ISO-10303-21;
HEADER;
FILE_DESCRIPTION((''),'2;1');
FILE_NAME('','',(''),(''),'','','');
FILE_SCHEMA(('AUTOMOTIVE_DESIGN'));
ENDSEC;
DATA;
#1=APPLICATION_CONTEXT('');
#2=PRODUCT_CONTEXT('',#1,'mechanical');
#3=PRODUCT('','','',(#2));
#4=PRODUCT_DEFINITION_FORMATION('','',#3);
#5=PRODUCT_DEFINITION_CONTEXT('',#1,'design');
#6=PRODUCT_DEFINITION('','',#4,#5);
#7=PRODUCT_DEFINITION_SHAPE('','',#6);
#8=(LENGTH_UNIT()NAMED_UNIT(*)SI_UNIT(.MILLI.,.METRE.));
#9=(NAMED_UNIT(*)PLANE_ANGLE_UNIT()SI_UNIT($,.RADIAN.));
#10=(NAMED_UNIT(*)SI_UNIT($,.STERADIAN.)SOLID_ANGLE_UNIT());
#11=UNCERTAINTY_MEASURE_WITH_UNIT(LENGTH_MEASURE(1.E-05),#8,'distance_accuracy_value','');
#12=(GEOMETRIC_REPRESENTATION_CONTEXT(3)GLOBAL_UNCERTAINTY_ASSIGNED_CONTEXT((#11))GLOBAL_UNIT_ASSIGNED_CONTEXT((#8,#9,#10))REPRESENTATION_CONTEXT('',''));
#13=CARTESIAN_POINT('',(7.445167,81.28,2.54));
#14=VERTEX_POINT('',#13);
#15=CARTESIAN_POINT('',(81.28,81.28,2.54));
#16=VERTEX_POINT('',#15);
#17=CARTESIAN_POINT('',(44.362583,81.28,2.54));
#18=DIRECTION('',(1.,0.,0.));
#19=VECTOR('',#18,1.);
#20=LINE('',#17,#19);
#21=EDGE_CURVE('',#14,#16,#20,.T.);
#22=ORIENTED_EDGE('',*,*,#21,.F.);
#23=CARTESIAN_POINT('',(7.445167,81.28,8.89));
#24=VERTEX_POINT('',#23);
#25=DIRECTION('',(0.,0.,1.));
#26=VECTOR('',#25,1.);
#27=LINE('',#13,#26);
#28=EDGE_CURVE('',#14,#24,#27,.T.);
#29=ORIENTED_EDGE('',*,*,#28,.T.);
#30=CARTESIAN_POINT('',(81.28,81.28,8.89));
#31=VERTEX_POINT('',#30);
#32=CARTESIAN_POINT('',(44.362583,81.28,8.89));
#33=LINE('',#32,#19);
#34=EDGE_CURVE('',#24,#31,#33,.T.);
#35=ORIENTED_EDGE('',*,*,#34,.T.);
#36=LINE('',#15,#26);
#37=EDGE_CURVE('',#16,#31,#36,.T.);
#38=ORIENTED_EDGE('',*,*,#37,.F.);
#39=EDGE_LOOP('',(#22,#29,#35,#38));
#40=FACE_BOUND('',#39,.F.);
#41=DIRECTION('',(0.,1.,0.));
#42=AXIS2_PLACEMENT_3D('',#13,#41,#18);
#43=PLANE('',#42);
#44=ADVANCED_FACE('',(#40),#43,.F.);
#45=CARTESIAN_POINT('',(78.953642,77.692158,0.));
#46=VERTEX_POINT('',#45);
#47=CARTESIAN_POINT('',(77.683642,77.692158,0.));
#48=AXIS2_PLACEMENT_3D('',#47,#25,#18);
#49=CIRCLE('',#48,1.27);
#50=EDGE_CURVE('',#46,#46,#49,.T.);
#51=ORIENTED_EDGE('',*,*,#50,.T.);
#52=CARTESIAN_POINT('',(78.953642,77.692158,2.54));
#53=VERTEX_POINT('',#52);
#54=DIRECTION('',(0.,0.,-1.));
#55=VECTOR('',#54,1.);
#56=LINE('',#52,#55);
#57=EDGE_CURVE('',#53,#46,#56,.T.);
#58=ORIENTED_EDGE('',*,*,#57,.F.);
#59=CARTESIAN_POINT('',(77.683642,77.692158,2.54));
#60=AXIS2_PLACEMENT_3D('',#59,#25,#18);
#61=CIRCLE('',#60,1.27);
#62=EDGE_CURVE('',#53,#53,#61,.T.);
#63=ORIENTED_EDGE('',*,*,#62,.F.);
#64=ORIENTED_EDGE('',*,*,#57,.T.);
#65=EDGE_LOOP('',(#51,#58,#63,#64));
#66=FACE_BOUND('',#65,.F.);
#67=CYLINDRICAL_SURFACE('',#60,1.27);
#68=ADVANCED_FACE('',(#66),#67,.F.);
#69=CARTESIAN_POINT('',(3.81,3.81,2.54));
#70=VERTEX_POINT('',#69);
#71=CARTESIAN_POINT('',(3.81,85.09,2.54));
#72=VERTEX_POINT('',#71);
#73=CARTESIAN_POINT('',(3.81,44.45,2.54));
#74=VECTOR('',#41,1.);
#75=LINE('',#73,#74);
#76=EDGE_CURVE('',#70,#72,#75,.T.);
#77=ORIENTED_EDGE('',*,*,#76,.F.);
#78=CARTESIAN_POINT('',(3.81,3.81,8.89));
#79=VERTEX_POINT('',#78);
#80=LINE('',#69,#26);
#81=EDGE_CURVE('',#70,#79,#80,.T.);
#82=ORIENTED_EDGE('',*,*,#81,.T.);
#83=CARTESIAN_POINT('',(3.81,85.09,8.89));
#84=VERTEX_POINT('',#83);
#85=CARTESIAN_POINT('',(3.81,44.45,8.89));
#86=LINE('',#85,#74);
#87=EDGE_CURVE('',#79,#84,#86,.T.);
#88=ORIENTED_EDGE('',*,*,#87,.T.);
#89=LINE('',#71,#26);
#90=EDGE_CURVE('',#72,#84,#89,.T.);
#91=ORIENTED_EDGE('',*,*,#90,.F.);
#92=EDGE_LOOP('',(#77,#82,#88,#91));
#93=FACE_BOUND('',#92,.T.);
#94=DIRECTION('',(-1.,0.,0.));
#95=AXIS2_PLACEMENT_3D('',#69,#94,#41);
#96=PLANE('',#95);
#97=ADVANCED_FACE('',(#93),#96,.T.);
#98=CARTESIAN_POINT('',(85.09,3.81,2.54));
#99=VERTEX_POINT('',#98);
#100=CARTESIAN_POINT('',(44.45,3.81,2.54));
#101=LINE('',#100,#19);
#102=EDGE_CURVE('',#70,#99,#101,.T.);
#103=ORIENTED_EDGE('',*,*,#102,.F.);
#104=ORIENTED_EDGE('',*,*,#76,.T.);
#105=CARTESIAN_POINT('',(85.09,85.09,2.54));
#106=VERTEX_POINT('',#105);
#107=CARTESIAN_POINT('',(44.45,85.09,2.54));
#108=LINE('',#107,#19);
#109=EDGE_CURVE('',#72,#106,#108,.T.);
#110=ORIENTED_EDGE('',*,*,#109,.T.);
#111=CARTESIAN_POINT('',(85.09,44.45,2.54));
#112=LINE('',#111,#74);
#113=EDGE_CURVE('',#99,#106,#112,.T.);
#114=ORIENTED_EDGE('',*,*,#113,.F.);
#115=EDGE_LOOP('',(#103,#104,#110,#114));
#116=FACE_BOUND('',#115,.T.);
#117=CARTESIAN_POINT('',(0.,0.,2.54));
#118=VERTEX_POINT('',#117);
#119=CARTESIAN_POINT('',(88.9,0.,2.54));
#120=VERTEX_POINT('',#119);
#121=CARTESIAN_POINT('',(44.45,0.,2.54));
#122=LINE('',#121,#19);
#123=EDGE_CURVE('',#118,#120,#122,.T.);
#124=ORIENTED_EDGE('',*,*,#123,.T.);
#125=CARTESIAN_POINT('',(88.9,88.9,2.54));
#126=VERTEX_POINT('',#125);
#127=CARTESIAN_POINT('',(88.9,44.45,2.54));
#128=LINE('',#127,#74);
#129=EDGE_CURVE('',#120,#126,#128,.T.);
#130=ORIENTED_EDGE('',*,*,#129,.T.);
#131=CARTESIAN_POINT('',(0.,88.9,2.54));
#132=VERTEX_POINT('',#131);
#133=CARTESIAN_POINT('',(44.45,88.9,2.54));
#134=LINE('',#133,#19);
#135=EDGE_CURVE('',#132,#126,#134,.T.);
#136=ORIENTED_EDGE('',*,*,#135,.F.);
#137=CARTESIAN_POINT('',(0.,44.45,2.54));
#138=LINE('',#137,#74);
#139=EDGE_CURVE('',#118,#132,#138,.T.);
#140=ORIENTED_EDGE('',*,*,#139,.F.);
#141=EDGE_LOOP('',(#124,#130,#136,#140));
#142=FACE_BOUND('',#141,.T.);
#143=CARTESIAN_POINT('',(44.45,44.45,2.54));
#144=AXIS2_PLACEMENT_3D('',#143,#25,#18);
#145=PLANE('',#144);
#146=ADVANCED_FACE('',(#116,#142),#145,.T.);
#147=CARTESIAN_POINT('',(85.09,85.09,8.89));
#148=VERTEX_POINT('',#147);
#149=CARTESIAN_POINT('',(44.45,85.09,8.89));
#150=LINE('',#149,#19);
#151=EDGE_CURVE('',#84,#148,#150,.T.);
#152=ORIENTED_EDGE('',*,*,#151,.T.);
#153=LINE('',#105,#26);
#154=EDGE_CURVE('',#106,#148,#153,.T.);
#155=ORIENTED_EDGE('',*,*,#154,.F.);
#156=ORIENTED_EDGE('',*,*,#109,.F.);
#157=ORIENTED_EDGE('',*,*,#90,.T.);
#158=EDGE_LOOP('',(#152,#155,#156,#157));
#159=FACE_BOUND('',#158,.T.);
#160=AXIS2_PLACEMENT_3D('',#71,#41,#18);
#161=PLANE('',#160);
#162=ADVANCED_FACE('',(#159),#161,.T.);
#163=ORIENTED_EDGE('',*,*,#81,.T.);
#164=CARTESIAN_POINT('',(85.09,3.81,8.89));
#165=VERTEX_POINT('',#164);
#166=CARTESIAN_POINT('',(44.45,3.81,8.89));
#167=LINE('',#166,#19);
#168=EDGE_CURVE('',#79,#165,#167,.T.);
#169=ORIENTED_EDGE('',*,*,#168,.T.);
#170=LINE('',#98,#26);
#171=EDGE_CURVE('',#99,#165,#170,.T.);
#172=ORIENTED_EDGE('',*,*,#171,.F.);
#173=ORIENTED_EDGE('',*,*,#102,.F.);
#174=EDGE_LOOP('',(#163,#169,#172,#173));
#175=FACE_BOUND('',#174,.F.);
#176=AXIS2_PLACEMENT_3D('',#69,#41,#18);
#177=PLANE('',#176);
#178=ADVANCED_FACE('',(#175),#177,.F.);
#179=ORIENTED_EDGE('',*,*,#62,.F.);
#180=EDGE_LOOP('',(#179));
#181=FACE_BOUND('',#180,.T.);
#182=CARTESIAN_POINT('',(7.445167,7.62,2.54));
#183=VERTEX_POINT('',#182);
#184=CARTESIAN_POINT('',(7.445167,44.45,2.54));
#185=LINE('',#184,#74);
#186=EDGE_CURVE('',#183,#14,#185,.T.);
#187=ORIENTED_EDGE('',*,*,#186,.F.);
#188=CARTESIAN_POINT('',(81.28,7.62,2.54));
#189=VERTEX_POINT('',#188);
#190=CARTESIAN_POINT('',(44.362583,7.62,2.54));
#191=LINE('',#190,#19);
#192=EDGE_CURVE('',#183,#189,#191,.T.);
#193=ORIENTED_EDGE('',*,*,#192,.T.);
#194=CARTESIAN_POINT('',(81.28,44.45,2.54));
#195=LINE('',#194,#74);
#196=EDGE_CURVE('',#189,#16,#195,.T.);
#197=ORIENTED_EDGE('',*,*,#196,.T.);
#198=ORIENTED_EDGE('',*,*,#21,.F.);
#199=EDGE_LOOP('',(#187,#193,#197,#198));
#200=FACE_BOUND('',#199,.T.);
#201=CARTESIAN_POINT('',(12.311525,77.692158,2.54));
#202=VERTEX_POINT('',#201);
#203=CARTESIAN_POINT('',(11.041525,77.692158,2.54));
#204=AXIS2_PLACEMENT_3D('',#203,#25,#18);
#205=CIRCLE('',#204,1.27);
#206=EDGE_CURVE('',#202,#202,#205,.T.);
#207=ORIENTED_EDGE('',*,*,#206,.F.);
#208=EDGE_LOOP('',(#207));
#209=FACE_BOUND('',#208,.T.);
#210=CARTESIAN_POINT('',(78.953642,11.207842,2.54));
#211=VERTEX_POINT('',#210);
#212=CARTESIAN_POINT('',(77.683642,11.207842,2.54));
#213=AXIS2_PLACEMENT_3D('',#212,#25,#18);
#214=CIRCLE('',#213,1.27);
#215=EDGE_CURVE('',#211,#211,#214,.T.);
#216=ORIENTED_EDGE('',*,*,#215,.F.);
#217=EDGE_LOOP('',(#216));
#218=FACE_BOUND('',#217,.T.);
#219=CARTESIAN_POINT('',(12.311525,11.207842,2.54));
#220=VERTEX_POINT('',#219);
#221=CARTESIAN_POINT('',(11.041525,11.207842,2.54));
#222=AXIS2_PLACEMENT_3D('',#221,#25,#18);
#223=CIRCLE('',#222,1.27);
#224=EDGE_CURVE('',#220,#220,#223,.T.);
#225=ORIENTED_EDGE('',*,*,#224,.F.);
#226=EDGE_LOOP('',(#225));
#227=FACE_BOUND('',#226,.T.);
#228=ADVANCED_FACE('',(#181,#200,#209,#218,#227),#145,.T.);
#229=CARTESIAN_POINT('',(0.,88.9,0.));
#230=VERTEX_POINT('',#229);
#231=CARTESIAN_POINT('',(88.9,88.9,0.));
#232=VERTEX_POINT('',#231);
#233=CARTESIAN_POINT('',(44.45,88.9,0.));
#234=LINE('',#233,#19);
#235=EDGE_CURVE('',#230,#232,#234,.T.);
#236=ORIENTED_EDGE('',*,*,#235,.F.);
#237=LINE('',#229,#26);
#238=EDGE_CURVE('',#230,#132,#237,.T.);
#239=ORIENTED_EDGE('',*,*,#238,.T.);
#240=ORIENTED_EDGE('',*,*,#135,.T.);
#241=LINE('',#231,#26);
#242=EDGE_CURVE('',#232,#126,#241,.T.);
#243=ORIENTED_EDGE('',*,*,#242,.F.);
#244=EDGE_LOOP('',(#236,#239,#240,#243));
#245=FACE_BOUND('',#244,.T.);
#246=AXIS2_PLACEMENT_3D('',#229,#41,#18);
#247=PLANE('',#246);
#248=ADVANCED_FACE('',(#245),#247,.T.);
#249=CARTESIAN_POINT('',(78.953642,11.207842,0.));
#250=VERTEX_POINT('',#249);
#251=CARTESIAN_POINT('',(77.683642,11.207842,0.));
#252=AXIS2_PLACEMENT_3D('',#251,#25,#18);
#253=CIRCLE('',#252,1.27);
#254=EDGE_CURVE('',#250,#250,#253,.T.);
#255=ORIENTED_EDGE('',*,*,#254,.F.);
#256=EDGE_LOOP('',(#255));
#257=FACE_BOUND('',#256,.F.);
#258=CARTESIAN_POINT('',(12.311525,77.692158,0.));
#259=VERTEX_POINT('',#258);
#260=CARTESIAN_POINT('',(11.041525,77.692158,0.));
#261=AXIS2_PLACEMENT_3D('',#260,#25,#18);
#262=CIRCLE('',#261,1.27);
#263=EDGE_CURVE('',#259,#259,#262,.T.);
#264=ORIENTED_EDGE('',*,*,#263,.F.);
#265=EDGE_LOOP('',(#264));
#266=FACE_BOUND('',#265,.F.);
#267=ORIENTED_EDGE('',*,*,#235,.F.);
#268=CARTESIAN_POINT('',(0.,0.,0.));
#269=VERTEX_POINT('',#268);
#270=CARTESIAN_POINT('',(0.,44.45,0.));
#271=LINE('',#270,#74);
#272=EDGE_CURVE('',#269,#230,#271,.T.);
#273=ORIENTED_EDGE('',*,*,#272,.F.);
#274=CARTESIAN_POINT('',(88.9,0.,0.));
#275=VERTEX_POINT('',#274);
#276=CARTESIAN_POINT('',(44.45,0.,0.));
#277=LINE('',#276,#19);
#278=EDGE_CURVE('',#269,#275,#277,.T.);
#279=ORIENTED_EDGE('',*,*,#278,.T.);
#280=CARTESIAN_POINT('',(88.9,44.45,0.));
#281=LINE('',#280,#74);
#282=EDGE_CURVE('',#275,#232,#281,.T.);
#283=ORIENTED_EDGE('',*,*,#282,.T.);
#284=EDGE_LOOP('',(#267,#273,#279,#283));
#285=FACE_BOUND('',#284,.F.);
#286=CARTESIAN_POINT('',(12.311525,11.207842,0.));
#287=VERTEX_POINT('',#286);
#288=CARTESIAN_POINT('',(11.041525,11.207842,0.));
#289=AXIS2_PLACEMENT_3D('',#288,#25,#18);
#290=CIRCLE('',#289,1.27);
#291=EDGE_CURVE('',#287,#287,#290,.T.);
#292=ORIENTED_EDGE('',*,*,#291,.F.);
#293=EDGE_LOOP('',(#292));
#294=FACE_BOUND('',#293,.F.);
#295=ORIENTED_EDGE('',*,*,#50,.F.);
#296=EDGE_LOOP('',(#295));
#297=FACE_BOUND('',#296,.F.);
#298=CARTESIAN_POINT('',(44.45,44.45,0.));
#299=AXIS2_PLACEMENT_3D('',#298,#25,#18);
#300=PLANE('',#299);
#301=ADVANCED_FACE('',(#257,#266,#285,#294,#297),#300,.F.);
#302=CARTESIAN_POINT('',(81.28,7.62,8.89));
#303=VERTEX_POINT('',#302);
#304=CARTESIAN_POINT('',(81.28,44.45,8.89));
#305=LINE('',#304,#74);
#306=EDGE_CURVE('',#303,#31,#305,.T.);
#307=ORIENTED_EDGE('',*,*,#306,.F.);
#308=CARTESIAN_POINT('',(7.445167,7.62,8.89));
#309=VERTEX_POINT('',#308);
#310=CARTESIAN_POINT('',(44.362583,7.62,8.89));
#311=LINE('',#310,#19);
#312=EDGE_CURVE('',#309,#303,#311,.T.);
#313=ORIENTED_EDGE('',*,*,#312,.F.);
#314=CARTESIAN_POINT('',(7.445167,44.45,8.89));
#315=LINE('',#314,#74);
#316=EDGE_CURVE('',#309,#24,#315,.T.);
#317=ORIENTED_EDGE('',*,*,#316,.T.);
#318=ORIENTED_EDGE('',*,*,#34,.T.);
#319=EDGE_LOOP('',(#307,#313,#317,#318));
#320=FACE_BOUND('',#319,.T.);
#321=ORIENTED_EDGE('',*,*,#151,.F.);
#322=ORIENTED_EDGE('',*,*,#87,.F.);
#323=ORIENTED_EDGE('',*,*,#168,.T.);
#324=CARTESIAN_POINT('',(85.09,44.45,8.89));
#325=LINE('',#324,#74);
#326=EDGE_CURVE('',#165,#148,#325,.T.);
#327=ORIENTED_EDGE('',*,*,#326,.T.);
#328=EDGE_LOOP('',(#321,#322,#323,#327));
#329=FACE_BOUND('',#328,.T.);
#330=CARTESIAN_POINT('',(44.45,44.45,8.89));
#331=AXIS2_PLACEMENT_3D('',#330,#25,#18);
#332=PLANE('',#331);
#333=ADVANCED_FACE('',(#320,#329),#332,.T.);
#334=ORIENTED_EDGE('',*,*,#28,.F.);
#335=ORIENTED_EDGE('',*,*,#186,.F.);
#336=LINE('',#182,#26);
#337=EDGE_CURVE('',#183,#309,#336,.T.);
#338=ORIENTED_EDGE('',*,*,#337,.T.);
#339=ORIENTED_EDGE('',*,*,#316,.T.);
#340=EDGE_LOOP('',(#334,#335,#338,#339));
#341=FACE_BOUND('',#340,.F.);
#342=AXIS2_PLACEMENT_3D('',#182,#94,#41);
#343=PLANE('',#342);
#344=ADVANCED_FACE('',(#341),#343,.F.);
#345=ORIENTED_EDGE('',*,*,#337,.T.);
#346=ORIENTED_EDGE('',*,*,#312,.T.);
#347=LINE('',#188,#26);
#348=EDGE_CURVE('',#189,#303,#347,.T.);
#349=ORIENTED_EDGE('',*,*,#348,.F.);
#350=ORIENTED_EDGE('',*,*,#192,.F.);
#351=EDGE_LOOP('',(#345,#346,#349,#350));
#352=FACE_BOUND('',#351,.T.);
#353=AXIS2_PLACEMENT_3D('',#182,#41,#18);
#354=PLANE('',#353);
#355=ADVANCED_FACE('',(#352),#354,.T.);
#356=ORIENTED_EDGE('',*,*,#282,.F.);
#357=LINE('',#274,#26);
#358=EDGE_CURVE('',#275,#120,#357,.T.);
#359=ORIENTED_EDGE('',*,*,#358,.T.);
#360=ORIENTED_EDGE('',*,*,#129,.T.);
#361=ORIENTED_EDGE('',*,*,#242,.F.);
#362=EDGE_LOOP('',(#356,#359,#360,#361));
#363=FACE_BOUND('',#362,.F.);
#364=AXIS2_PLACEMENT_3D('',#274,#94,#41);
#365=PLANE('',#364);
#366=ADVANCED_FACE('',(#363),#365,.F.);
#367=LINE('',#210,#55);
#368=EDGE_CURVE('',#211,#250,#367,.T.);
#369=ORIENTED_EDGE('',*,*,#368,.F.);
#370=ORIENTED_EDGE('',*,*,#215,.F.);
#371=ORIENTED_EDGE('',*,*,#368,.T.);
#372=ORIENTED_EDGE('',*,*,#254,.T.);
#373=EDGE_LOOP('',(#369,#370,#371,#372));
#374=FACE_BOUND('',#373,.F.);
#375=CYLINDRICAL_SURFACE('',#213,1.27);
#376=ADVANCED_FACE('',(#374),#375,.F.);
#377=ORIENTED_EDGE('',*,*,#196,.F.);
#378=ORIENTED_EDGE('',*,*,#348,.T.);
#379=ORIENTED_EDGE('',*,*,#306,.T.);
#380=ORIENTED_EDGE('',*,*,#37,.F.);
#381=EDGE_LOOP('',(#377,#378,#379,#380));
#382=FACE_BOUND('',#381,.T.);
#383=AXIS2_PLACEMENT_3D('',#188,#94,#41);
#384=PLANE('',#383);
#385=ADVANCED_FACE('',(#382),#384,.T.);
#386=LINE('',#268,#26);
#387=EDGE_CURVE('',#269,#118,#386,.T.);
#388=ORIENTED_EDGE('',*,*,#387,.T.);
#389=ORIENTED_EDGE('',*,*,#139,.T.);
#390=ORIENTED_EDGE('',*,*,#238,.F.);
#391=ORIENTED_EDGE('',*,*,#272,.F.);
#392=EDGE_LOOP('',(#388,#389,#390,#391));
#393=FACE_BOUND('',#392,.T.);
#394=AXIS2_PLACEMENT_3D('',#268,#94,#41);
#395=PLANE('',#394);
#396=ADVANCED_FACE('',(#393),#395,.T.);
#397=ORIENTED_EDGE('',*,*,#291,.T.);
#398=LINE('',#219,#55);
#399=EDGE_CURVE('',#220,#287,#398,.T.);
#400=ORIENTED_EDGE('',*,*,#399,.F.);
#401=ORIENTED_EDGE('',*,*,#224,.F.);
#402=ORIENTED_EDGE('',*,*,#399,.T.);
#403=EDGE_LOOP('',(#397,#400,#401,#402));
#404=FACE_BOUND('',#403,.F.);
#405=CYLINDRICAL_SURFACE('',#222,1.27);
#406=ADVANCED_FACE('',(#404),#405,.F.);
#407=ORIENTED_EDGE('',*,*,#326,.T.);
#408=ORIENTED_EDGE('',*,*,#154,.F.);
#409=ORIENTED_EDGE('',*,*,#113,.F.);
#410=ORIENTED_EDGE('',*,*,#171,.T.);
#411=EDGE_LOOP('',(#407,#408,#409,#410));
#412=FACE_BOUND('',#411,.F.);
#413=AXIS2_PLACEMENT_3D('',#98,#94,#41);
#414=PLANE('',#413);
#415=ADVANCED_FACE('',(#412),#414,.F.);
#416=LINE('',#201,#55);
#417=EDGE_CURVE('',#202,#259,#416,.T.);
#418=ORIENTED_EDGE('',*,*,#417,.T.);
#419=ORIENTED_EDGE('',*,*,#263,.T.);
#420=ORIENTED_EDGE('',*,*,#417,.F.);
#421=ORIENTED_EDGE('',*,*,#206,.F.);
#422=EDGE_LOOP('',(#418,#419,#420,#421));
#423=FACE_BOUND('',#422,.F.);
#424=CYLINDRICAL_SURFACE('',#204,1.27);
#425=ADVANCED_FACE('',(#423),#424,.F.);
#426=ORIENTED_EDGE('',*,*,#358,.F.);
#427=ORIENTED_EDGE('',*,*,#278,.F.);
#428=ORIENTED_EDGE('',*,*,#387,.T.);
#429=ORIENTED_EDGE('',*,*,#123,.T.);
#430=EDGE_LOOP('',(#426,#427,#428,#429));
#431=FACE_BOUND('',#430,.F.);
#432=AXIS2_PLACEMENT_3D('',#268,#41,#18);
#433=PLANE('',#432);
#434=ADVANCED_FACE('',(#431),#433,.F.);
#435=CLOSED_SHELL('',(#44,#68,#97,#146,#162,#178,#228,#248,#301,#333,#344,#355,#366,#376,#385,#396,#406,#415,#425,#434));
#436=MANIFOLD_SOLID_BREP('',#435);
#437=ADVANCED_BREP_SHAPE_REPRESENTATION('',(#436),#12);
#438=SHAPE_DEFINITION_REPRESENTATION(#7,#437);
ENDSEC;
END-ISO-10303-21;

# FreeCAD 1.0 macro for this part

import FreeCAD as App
import Part
import Sketcher
from FreeCAD import Vector
Q = App.Units.Quantity

doc = App.newDocument("Part")
body = doc.addObject("PartDesign::Body", "Body")

sketch1 = body.newObject("Sketcher::SketchObject", "Sketch")
sketch1.AttachmentSupport = (doc.getObject("XY_Plane"), [""])
sketch1.MapMode = "FlatFace"
sketch1.addGeometry([
    Part.LineSegment(Vector(0, 89, 0), Vector(0, 0, 0)),
    Part.LineSegment(Vector(0, 0, 0), Vector(89, 0, 0)),
    Part.LineSegment(Vector(89, 0, 0), Vector(89, 89, 0)),
    Part.LineSegment(Vector(89, 89, 0), Vector(0, 89, 0)),
], False)
sketch1.addConstraint([
    Sketcher.Constraint("Coincident", 0, 2, 1, 1),
    Sketcher.Constraint("Coincident", 1, 2, 2, 1),
    Sketcher.Constraint("Coincident", 2, 2, 3, 1),
    Sketcher.Constraint("Coincident", 3, 2, 0, 1),
    Sketcher.Constraint("Vertical", 0),
    Sketcher.Constraint("Horizontal", 1),
    Sketcher.Constraint("Vertical", 2),
    Sketcher.Constraint("Horizontal", 3),
    Sketcher.Constraint("Coincident", 0, 2, -1, 1),
    Sketcher.Constraint("Equal", 3, 0),
    Sketcher.Constraint("DistanceX", 1, 1, 1, 2, Q("3.5 in")),
])
pad1 = body.newObject("PartDesign::Pad", "Pad")
pad1.Profile = sketch1
pad1.Length = Q("0.1 in")

sketch2 = body.newObject("Sketcher::SketchObject", "Sketch001")
sketch2.AttachmentSupport = (doc.getObject("XY_Plane"), [""])
sketch2.MapMode = "FlatFace"
sketch2.AttachmentOffset = App.Placement(Vector(0, 0, 0.1 * 25.4), App.Rotation())
sketch2.addGeometry([
    Part.LineSegment(Vector(4, 85, 0), Vector(4, 4, 0)),
    Part.LineSegment(Vector(4, 4, 0), Vector(85, 4, 0)),
    Part.LineSegment(Vector(85, 4, 0), Vector(85, 85, 0)),
    Part.LineSegment(Vector(85, 85, 0), Vector(4, 85, 0)),
    Part.LineSegment(Vector(81, 8, 0), Vector(7, 8, 0)),
    Part.LineSegment(Vector(7, 8, 0), Vector(7, 81, 0)),
    Part.LineSegment(Vector(7, 81, 0), Vector(81, 81, 0)),
    Part.LineSegment(Vector(81, 81, 0), Vector(81, 8, 0)),
], False)
sketch2.addConstraint([
    Sketcher.Constraint("Coincident", 0, 2, 1, 1),
    Sketcher.Constraint("Coincident", 1, 2, 2, 1),
    Sketcher.Constraint("Coincident", 2, 2, 3, 1),
    Sketcher.Constraint("Coincident", 3, 2, 0, 1),
    Sketcher.Constraint("Coincident", 4, 2, 5, 1),
    Sketcher.Constraint("Coincident", 5, 2, 6, 1),
    Sketcher.Constraint("Coincident", 6, 2, 7, 1),
    Sketcher.Constraint("Coincident", 7, 2, 4, 1),
    Sketcher.Constraint("Vertical", 0),
    Sketcher.Constraint("Horizontal", 1),
    Sketcher.Constraint("Vertical", 2),
    Sketcher.Constraint("Horizontal", 3),
    Sketcher.Constraint("Horizontal", 4),
    Sketcher.Constraint("Vertical", 5),
    Sketcher.Constraint("Horizontal", 6),
    Sketcher.Constraint("Vertical", 7),
    Sketcher.Constraint("Equal", 3, 0),
    Sketcher.Constraint("DistanceX", 1, 1, 1, 2, Q("3.2 in")),
    Sketcher.Constraint("DistanceY", 5, 1, 5, 2, Q("2.9 in")),
    Sketcher.Constraint("DistanceY", -1, 1, 4, 2, Q("0.3 in")),
    Sketcher.Constraint("DistanceX", -1, 1, 6, 2, Q("3.2 in")),
    Sketcher.Constraint("DistanceX", -1, 1, 0, 2, Q("0.15 in")),
    Sketcher.Constraint("DistanceY", -1, 1, 0, 2, Q("0.15 in")),
    Sketcher.Constraint("DistanceX", 4, 2, 4, 1, Q("73.834833 mm")),
])
pad2 = body.newObject("PartDesign::Pad", "Pad001")
pad2.Profile = sketch2
pad2.Length = Q("0.25 in")

sketch3 = body.newObject("Sketcher::SketchObject", "Sketch002")
sketch3.AttachmentSupport = (doc.getObject("XY_Plane"), [""])
sketch3.MapMode = "FlatFace"
sketch3.AttachmentOffset = App.Placement(Vector(0, 0, 0.1 * 25.4), App.Rotation())
sketch3.addGeometry([
    Part.Circle(Vector(11, 77.7, 0), Vector(0, 0, 1), 1.3),
    Part.Circle(Vector(77.7, 77.7, 0), Vector(0, 0, 1), 1.3),
    Part.Circle(Vector(77.7, 11.2, 0), Vector(0, 0, 1), 1.3),
    Part.Circle(Vector(11, 11.2, 0), Vector(0, 0, 1), 1.3),
], False)
sketch3.addConstraint([
    Sketcher.Constraint("Equal", 0, 1),
    Sketcher.Constraint("Equal", 1, 2),
    Sketcher.Constraint("Equal", 2, 3),
    Sketcher.Constraint("Horizontal", 0, 3, 1, 3),
    Sketcher.Constraint("Horizontal", 2, 3, 3, 3),
    Sketcher.Constraint("Vertical", 1, 3, 2, 3),
    Sketcher.Constraint("Vertical", 0, 3, 3, 3),
    Sketcher.Constraint("Diameter", 0, Q("0.1 in")),
    Sketcher.Constraint("DistanceY", -1, 1, 0, 3, Q("77.692158 mm")),
    Sketcher.Constraint("DistanceX", -1, 1, 0, 3, Q("11.041525 mm")),
    Sketcher.Constraint("DistanceX", -1, 1, 1, 3, Q("77.683642 mm")),
    Sketcher.Constraint("DistanceY", -1, 1, 2, 3, Q("11.207842 mm")),
])
pocket1 = body.newObject("PartDesign::Pocket", "Pocket")
pocket1.Profile = sketch3
pocket1.Type = "ThroughAll"

doc.recompute()
